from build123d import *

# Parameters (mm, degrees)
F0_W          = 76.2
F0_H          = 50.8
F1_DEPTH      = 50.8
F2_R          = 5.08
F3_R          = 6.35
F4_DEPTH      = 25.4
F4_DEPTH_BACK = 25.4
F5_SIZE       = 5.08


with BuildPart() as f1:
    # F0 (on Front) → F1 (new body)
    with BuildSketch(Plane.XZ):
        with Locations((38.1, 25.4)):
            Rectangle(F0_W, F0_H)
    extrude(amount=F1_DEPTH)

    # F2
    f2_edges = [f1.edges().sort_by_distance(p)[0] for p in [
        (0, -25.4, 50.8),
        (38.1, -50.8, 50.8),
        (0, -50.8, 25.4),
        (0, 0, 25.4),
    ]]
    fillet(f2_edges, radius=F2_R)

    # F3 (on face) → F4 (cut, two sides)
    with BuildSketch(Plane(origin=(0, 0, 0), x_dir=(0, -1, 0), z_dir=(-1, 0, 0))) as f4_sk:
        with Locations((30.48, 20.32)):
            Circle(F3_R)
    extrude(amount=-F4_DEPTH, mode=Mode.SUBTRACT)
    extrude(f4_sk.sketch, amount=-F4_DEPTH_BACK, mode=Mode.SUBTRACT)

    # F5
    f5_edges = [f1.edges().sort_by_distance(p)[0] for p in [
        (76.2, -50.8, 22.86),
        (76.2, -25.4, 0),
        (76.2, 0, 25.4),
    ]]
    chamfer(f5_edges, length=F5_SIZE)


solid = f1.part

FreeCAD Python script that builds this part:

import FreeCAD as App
import Part
import Sketcher
from FreeCAD import Vector
Q = App.Units.Quantity


def edges_at(feature, points):
    """Names of the edges that pass closest to the given points."""
    edges = feature.Shape.Edges
    near = lambda p: min(range(len(edges)), key=lambda i: edges[i].distToShape(Part.Vertex(*p))[0])
    return sorted({f"Edge{near(p) + 1}" for p in points})


def add_polygon(sketch, points):
    """Adds a closed chain of lines whose ends are joined by coincident constraints."""
    first, n = sketch.GeometryCount, len(points)
    for a, b in zip(points, points[1:] + points[:1]):
        sketch.addGeometry(Part.LineSegment(App.Vector(*a, 0), App.Vector(*b, 0)), False)
    for i in range(n):
        sketch.addConstraint(Sketcher.Constraint("Coincident", first + i, 2, first + (i + 1) % n, 1))

doc = App.newDocument("Part")
params = doc.addObject("Spreadsheet::Sheet", "Params")
for row, (alias, value) in enumerate([
    ("sketch1_width", "3 in"),
    ("sketch1_height", "2 in"),
    ("pad1_length", "2 in"),
    ("fillet_radius", "0.2 in"),
    ("sketch2_diameter", "0.5 in"),
    ("pocket1_length", "1 in"),
    ("pocket2_length", "1 in"),
    ("chamfer_size", "0.2 in"),
], start=1):
    params.set(f"A{row}", alias)
    params.set(f"B{row}", "=" + value)
    params.setAlias(f"B{row}", alias)

body = doc.addObject("PartDesign::Body", "Body")

sketch1 = doc.addObject("Sketcher::SketchObject", "Sketch")
body.addObject(sketch1)
sketch1.AttachmentSupport = (doc.XZ_Plane, [""])
sketch1.MapMode = "FlatFace"
add_polygon(sketch1, [(0, 51), (0, 0), (76, 0), (76, 51)])
sketch1.addConstraint(Sketcher.Constraint("Vertical", 0))
sketch1.addConstraint(Sketcher.Constraint("Horizontal", 1))
sketch1.addConstraint(Sketcher.Constraint("Vertical", 2))
sketch1.addConstraint(Sketcher.Constraint("Horizontal", 3))
sketch1.addConstraint(Sketcher.Constraint("Coincident", 0, 2, -1, 1))
sketch1.addConstraint(Sketcher.Constraint("DistanceX", 1, 1, 1, 2, Q("3 in")))
sketch1.addConstraint(Sketcher.Constraint("DistanceY", 0, 2, 0, 1, Q("2 in")))
sketch1.setExpression("Constraints[9]", "Params.sketch1_width")
sketch1.setExpression("Constraints[10]", "Params.sketch1_height")
pad1 = doc.addObject("PartDesign::Pad", "Pad")
body.addObject(pad1)
pad1.Profile = sketch1
pad1.setExpression("Length", "Params.pad1_length")
doc.recompute()

fillet = doc.addObject("PartDesign::Fillet", "Fillet")
body.addObject(fillet)
fillet.Base = (pad1, edges_at(pad1, [
    (0, -25.4, 50.8),
    (38.1, -50.8, 50.8),
    (0, -50.8, 25.4),
    (0, 0, 25.4),
]))
fillet.setExpression("Radius", "Params.fillet_radius")

sketch2 = doc.addObject("Sketcher::SketchObject", "Sketch001")
body.addObject(sketch2)
sketch2.AttachmentSupport = (doc.YZ_Plane, [""])
sketch2.MapMode = "FlatFace"
sketch2.addGeometry(Part.Circle(Vector(-30, 20, 0), Vector(0, 0, 1), 6), False)
sketch2.addConstraint(Sketcher.Constraint("Diameter", 0, Q("0.5 in")))
sketch2.addConstraint(Sketcher.Constraint("DistanceX", 0, 3, -1, 1, Q("1.2 in")))
sketch2.addConstraint(Sketcher.Constraint("DistanceY", -1, 1, 0, 3, Q("0.8 in")))
sketch2.setExpression("Constraints[0]", "Params.sketch2_diameter")
pocket1 = doc.addObject("PartDesign::Pocket", "Pocket")
body.addObject(pocket1)
pocket1.Profile = sketch2
pocket1.setExpression("Length", "Params.pocket1_length")
pocket1.Reversed = True
pocket2 = doc.addObject("PartDesign::Pocket", "Pocket001")
body.addObject(pocket2)
pocket2.Profile = sketch2
pocket2.setExpression("Length", "Params.pocket2_length")
pocket2.Reversed = True
doc.recompute()

chamfer = doc.addObject("PartDesign::Chamfer", "Chamfer")
body.addObject(chamfer)
chamfer.Base = (pocket2, edges_at(pocket2, [(76.2, -50.8, 22.86), (76.2, -25.4, 0), (76.2, 0, 25.4)]))
chamfer.setExpression("Size", "Params.chamfer_size")

doc.recompute()
